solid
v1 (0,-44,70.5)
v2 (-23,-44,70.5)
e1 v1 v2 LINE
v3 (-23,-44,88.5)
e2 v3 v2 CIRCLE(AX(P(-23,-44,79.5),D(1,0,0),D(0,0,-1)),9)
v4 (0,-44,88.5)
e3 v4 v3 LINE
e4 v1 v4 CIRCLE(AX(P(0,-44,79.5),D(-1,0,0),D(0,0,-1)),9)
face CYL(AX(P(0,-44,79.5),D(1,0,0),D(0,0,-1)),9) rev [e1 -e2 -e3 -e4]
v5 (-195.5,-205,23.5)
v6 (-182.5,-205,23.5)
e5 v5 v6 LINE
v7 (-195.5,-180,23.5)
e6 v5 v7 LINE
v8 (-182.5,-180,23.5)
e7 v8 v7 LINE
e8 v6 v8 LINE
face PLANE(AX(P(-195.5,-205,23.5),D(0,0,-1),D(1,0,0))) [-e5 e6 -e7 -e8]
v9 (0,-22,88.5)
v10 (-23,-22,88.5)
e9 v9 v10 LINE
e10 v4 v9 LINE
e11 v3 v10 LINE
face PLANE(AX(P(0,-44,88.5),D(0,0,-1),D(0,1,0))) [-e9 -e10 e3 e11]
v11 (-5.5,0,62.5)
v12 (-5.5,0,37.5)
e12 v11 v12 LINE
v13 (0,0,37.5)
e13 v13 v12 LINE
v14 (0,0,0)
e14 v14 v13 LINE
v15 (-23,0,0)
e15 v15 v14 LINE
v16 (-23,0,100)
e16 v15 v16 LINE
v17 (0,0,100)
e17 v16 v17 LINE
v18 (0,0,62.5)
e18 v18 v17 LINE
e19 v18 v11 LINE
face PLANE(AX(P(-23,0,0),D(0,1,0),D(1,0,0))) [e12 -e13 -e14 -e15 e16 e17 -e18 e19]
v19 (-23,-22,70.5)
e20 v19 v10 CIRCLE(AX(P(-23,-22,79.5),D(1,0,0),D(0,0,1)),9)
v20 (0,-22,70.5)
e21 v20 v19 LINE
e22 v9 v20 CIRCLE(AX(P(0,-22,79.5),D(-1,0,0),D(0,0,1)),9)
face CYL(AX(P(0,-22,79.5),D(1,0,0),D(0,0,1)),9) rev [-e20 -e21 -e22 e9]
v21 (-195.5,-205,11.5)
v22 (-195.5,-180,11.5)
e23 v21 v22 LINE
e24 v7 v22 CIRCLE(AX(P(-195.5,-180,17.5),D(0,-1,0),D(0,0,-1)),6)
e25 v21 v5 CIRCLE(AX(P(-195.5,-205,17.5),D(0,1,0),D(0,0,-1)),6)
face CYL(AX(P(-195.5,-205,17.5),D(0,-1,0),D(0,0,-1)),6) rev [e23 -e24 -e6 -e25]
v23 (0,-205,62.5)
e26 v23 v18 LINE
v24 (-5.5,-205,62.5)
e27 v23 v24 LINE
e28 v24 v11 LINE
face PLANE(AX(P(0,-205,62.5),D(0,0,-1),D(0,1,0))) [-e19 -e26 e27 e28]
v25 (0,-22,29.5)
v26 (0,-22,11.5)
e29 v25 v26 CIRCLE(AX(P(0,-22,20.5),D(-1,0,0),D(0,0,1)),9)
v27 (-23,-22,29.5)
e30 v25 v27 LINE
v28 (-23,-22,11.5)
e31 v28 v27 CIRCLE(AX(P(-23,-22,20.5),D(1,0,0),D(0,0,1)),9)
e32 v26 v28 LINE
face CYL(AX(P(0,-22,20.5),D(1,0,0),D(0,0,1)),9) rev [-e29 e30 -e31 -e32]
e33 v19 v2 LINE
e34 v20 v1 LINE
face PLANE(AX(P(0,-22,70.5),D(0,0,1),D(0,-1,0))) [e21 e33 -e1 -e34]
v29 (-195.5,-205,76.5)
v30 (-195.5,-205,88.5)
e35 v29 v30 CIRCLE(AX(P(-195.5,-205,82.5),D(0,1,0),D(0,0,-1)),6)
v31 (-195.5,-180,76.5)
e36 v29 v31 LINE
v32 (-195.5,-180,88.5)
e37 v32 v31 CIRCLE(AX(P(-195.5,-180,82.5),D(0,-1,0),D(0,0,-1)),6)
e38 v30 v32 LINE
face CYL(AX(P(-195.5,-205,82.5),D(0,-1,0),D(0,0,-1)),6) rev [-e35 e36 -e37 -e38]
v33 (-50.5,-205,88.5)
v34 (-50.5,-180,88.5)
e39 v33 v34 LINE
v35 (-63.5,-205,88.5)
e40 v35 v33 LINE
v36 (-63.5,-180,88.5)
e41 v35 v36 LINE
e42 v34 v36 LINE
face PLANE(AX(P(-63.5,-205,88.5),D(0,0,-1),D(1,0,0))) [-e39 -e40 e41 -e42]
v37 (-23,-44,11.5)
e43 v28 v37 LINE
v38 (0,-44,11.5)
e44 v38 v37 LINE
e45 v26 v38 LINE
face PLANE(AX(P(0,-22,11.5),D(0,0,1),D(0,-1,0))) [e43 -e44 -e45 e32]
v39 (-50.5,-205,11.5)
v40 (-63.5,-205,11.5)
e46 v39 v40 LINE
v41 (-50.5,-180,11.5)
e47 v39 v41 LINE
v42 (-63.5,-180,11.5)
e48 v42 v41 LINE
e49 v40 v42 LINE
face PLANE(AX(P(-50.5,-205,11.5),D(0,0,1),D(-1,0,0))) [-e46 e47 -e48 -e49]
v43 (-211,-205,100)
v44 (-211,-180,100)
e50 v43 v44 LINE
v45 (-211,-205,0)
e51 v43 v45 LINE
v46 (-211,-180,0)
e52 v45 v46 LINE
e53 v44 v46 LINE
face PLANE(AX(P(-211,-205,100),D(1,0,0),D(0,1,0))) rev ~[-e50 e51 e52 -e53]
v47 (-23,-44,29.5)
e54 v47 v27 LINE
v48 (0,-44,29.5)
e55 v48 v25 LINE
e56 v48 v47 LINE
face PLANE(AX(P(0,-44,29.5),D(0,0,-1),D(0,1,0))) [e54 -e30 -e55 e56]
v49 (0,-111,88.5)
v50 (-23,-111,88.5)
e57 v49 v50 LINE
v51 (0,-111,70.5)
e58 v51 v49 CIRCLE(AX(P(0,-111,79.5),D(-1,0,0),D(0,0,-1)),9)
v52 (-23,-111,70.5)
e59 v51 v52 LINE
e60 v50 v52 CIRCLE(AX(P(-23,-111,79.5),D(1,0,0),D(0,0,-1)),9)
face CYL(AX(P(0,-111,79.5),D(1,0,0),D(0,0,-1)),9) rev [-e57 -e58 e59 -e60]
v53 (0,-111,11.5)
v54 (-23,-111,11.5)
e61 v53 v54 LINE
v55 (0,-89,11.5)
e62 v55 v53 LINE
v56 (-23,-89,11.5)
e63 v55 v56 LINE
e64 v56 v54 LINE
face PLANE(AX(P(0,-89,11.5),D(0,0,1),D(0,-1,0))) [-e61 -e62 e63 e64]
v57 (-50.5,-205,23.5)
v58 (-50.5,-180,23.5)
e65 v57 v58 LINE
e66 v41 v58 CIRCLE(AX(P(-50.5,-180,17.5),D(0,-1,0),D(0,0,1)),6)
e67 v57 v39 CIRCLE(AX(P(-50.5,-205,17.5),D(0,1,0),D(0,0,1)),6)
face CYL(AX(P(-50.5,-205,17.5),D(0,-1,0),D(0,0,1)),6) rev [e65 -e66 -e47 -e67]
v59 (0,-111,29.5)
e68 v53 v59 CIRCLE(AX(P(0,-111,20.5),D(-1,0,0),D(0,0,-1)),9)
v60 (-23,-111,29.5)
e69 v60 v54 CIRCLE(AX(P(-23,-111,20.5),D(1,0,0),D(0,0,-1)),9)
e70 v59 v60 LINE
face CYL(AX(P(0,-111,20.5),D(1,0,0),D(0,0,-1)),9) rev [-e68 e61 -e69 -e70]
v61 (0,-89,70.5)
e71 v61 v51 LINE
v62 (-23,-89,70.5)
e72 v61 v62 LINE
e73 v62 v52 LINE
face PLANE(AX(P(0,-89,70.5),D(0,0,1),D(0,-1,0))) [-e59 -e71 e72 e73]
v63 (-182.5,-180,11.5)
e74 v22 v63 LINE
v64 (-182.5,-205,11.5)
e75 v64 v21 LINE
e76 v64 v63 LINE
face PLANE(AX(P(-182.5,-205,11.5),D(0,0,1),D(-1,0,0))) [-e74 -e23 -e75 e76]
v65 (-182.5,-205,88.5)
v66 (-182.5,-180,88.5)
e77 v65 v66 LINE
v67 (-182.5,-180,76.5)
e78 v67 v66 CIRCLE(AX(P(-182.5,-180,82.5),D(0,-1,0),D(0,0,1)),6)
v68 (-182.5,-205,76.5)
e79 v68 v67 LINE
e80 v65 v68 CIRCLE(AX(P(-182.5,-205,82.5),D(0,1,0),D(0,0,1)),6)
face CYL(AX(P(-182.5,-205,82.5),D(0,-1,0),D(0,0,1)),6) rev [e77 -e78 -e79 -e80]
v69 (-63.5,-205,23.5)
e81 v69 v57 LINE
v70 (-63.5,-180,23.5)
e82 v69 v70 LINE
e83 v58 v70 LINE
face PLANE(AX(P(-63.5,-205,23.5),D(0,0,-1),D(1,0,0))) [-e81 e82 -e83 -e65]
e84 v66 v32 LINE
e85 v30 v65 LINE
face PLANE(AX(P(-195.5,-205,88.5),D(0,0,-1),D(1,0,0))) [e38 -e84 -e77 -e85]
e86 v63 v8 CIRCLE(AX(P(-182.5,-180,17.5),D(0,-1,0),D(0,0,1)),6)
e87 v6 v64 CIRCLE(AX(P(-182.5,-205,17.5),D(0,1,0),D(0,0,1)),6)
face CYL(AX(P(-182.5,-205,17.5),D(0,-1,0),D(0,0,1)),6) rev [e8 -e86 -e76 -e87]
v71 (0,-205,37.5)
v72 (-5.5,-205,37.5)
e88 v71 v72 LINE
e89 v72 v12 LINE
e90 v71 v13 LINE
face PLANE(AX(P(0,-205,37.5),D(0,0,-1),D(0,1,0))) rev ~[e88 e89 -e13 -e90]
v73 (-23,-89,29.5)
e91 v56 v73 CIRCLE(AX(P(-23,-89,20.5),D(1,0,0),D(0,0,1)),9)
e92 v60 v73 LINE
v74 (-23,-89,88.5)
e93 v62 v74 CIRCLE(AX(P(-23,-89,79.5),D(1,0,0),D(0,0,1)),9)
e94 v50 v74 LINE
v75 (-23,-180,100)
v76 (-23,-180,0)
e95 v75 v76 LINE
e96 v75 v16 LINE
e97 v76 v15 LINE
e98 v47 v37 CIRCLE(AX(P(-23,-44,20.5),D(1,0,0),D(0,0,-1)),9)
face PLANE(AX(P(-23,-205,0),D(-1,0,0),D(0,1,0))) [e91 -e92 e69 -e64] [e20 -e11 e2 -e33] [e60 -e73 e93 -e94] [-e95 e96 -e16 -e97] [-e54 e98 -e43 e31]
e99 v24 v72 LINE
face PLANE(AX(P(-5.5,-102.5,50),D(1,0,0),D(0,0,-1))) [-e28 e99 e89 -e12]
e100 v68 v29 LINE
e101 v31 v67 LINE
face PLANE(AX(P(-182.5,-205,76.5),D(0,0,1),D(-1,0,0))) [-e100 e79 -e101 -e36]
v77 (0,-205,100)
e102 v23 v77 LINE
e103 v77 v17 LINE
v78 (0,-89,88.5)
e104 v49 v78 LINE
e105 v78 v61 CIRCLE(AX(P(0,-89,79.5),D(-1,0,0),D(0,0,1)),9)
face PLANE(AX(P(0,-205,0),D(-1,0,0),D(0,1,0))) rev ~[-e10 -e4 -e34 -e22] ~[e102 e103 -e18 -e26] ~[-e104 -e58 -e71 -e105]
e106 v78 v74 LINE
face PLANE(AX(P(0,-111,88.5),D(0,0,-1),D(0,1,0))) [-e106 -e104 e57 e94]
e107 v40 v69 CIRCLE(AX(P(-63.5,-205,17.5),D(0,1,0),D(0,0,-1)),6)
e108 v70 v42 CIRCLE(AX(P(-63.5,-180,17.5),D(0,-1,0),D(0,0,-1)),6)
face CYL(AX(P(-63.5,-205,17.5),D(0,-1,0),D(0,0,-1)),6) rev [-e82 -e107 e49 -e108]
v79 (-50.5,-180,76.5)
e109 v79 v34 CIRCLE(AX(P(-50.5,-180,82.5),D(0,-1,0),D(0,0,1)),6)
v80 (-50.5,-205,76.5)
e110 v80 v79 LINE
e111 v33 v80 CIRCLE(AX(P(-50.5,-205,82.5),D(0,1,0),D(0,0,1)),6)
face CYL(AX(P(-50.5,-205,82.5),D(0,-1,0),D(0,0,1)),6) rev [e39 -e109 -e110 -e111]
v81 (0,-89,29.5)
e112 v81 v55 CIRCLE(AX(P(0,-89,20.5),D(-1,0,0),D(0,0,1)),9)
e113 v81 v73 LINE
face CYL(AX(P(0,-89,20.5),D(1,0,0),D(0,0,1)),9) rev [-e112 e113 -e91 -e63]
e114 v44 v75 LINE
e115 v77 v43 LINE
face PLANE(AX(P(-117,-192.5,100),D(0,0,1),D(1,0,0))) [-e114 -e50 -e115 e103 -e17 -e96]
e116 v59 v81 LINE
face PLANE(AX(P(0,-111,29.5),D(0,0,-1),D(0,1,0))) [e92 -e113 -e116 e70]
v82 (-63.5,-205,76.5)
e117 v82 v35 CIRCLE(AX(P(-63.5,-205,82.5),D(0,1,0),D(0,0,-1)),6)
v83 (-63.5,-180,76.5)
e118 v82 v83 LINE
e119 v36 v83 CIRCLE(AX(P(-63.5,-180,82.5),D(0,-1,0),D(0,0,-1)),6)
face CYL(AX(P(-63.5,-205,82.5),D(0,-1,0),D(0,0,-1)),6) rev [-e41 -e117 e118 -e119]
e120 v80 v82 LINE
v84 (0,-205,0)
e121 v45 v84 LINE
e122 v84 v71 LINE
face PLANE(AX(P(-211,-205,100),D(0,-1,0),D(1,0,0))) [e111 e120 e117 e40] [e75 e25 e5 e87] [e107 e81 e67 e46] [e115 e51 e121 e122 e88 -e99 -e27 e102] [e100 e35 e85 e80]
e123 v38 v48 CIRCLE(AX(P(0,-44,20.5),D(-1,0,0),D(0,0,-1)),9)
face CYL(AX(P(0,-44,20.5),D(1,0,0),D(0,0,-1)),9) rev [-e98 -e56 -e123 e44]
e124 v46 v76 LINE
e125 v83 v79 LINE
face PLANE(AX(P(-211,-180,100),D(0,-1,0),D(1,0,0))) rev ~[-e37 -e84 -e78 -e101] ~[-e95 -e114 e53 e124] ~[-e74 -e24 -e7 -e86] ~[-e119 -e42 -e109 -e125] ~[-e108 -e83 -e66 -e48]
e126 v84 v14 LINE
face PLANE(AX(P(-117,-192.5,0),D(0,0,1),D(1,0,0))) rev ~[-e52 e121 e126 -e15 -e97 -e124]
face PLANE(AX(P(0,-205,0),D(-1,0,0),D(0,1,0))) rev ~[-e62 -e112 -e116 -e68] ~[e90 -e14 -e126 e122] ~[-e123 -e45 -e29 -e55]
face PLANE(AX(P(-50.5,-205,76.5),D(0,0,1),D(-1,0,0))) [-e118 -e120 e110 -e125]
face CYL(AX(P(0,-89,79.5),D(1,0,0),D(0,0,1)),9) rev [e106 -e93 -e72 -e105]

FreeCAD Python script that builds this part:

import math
import FreeCAD as App
import Part
import Sketcher
from FreeCAD import Vector
Q = App.Units.Quantity

doc = App.newDocument("Part")
body = doc.addObject("PartDesign::Body", "Body")

# Sketch on XY plane
sketch1 = body.newObject("Sketcher::SketchObject", "Sketch")
sketch1.AttachmentSupport = (doc.getObject("XY_Plane"), [""])
sketch1.MapMode = "FlatFace"
sketch1.addGeometry([
    Part.LineSegment(Vector(-23, 0, 0), Vector(-23, -205, 0)),
    Part.LineSegment(Vector(-23, -205, 0), Vector(0, -205, 0)),
    Part.LineSegment(Vector(0, -205, 0), Vector(0, 0, 0)),
    Part.LineSegment(Vector(0, 0, 0), Vector(-23, 0, 0)),
], False)
sketch1.addConstraint([
    Sketcher.Constraint("Coincident", 0, 2, 1, 1),
    Sketcher.Constraint("Coincident", 1, 2, 2, 1),
    Sketcher.Constraint("Coincident", 2, 2, 3, 1),
    Sketcher.Constraint("Coincident", 3, 2, 0, 1),
    Sketcher.Constraint("Vertical", 0),
    Sketcher.Constraint("Horizontal", 1),
    Sketcher.Constraint("Vertical", 2),
    Sketcher.Constraint("Horizontal", 3),
    Sketcher.Constraint("Coincident", 2, 2, -1, 1),
    Sketcher.Constraint("DistanceX", 1, 1, 1, 2, Q("23 mm")),
    Sketcher.Constraint("DistanceY", 0, 2, 0, 1, Q("205 mm")),
])
pad1 = body.newObject("PartDesign::Pad", "Pad")
pad1.Profile = sketch1
pad1.Length = 100

# Sketch on XY plane
sketch2 = body.newObject("Sketcher::SketchObject", "Sketch001")
sketch2.AttachmentSupport = (doc.getObject("XY_Plane"), [""])
sketch2.MapMode = "FlatFace"
sketch2.AttachmentOffset = App.Placement(Vector(0, 0, 100), App.Rotation())
sketch2.addGeometry([
    Part.LineSegment(Vector(-211, -180, 0), Vector(-211, -205, 0)),
    Part.LineSegment(Vector(-211, -205, 0), Vector(-23, -205, 0)),
    Part.LineSegment(Vector(-23, -205, 0), Vector(-23, -180, 0)),
    Part.LineSegment(Vector(-23, -180, 0), Vector(-211, -180, 0)),
], False)
sketch2.addConstraint([
    Sketcher.Constraint("Coincident", 0, 2, 1, 1),
    Sketcher.Constraint("Coincident", 1, 2, 2, 1),
    Sketcher.Constraint("Coincident", 2, 2, 3, 1),
    Sketcher.Constraint("Coincident", 3, 2, 0, 1),
    Sketcher.Constraint("Vertical", 0),
    Sketcher.Constraint("Horizontal", 1),
    Sketcher.Constraint("Vertical", 2),
    Sketcher.Constraint("Horizontal", 3),
    Sketcher.Constraint("DistanceX", 1, 1, 1, 2, Q("188 mm")),
    Sketcher.Constraint("DistanceY", 0, 2, 0, 1, Q("25 mm")),
    Sketcher.Constraint("DistanceX", 0, 2, -1, 1, Q("211 mm")),
    Sketcher.Constraint("DistanceY", 0, 2, -1, 1, Q("205 mm")),
])
pad2 = body.newObject("PartDesign::Pad", "Pad001")
pad2.Profile = sketch2
pad2.Length = 100
pad2.Reversed = True

# Sketch on YZ plane
sketch3 = body.newObject("Sketcher::SketchObject", "Sketch002")
sketch3.AttachmentSupport = (doc.getObject("YZ_Plane"), [""])
sketch3.MapMode = "FlatFace"
sketch3.addGeometry([
    Part.LineSegment(Vector(-44, 70, 0), Vector(-22, 70, 0)),
    Part.ArcOfCircle(Part.Circle(Vector(-22, 80, 0), Vector(0, 0, 1), 9), math.radians(-90), math.radians(90)),
    Part.LineSegment(Vector(-22, 88, 0), Vector(-44, 88, 0)),
    Part.ArcOfCircle(Part.Circle(Vector(-44, 80, 0), Vector(0, 0, 1), 9), math.radians(90), math.radians(270)),
], False)
sketch3.addConstraint([
    Sketcher.Constraint("Tangent", 0, 2, 1, 1),
    Sketcher.Constraint("Tangent", 1, 2, 2, 1),
    Sketcher.Constraint("Tangent", 2, 2, 3, 1),
    Sketcher.Constraint("Tangent", 3, 2, 0, 1),
    Sketcher.Constraint("Horizontal", 0),
    Sketcher.Constraint("Horizontal", 2),
    Sketcher.Constraint("Radius", 1, Q("9 mm")),
    Sketcher.Constraint("DistanceX", 0, 1, 0, 2, Q("22 mm")),
    Sketcher.Constraint("DistanceX", 1, 3, -1, 1, Q("22 mm")),
    Sketcher.Constraint("DistanceY", -1, 1, 1, 3, Q("79.5 mm")),
])
pocket1 = body.newObject("PartDesign::Pocket", "Pocket")
pocket1.Profile = sketch3
pocket1.Type = "UpToFirst"

# Sketch on YZ plane
sketch4 = body.newObject("Sketcher::SketchObject", "Sketch003")
sketch4.AttachmentSupport = (doc.getObject("YZ_Plane"), [""])
sketch4.MapMode = "FlatFace"
sketch4.addGeometry([
    Part.LineSegment(Vector(-44, 12, 0), Vector(-22, 12, 0)),
    Part.ArcOfCircle(Part.Circle(Vector(-22, 20, 0), Vector(0, 0, 1), 9), math.radians(-90), math.radians(90)),
    Part.LineSegment(Vector(-22, 30, 0), Vector(-44, 30, 0)),
    Part.ArcOfCircle(Part.Circle(Vector(-44, 20, 0), Vector(0, 0, 1), 9), math.radians(90), math.radians(270)),
], False)
sketch4.addConstraint([
    Sketcher.Constraint("Tangent", 0, 2, 1, 1),
    Sketcher.Constraint("Tangent", 1, 2, 2, 1),
    Sketcher.Constraint("Tangent", 2, 2, 3, 1),
    Sketcher.Constraint("Tangent", 3, 2, 0, 1),
    Sketcher.Constraint("Horizontal", 0),
    Sketcher.Constraint("Horizontal", 2),
    Sketcher.Constraint("Radius", 1, Q("9 mm")),
    Sketcher.Constraint("DistanceX", 0, 1, 0, 2, Q("22 mm")),
    Sketcher.Constraint("DistanceX", 1, 3, -1, 1, Q("22 mm")),
    Sketcher.Constraint("DistanceY", -1, 1, 1, 3, Q("20.5 mm")),
])
pocket2 = body.newObject("PartDesign::Pocket", "Pocket001")
pocket2.Profile = sketch4
pocket2.Type = "UpToFirst"

# Sketch on YZ plane
sketch5 = body.newObject("Sketcher::SketchObject", "Sketch004")
sketch5.AttachmentSupport = (doc.getObject("YZ_Plane"), [""])
sketch5.MapMode = "FlatFace"
sketch5.addGeometry([
    Part.LineSegment(Vector(-111, 70, 0), Vector(-89, 70, 0)),
    Part.ArcOfCircle(Part.Circle(Vector(-89, 80, 0), Vector(0, 0, 1), 9), math.radians(-90), math.radians(90)),
    Part.LineSegment(Vector(-89, 88, 0), Vector(-111, 88, 0)),
    Part.ArcOfCircle(Part.Circle(Vector(-111, 80, 0), Vector(0, 0, 1), 9), math.radians(90), math.radians(270)),
], False)
sketch5.addConstraint([
    Sketcher.Constraint("Tangent", 0, 2, 1, 1),
    Sketcher.Constraint("Tangent", 1, 2, 2, 1),
    Sketcher.Constraint("Tangent", 2, 2, 3, 1),
    Sketcher.Constraint("Tangent", 3, 2, 0, 1),
    Sketcher.Constraint("Horizontal", 0),
    Sketcher.Constraint("Horizontal", 2),
    Sketcher.Constraint("Radius", 1, Q("9 mm")),
    Sketcher.Constraint("DistanceX", 0, 1, 0, 2, Q("22 mm")),
    Sketcher.Constraint("DistanceX", 1, 3, -1, 1, Q("89 mm")),
    Sketcher.Constraint("DistanceY", -1, 1, 1, 3, Q("79.5 mm")),
])
pocket3 = body.newObject("PartDesign::Pocket", "Pocket002")
pocket3.Profile = sketch5
pocket3.Type = "UpToFirst"

# Sketch on YZ plane
sketch6 = body.newObject("Sketcher::SketchObject", "Sketch005")
sketch6.AttachmentSupport = (doc.getObject("YZ_Plane"), [""])
sketch6.MapMode = "FlatFace"
sketch6.addGeometry([
    Part.LineSegment(Vector(-111, 12, 0), Vector(-89, 12, 0)),
    Part.ArcOfCircle(Part.Circle(Vector(-89, 20, 0), Vector(0, 0, 1), 9), math.radians(-90), math.radians(90)),
    Part.LineSegment(Vector(-89, 30, 0), Vector(-111, 30, 0)),
    Part.ArcOfCircle(Part.Circle(Vector(-111, 20, 0), Vector(0, 0, 1), 9), math.radians(90), math.radians(270)),
], False)
sketch6.addConstraint([
    Sketcher.Constraint("Tangent", 0, 2, 1, 1),
    Sketcher.Constraint("Tangent", 1, 2, 2, 1),
    Sketcher.Constraint("Tangent", 2, 2, 3, 1),
    Sketcher.Constraint("Tangent", 3, 2, 0, 1),
    Sketcher.Constraint("Horizontal", 0),
    Sketcher.Constraint("Horizontal", 2),
    Sketcher.Constraint("Radius", 1, Q("9 mm")),
    Sketcher.Constraint("DistanceX", 0, 1, 0, 2, Q("22 mm")),
    Sketcher.Constraint("DistanceX", 1, 3, -1, 1, Q("89 mm")),
    Sketcher.Constraint("DistanceY", -1, 1, 1, 3, Q("20.5 mm")),
])
pocket4 = body.newObject("PartDesign::Pocket", "Pocket003")
pocket4.Profile = sketch6
pocket4.Type = "UpToFirst"

# Sketch on XZ plane
sketch7 = body.newObject("Sketcher::SketchObject", "Sketch006")
sketch7.AttachmentSupport = (doc.getObject("XZ_Plane"), [""])
sketch7.MapMode = "FlatFace"
sketch7.AttachmentOffset = App.Placement(Vector(0, 0, 205), App.Rotation())
sketch7.addGeometry([
    Part.LineSegment(Vector(-182, 88, 0), Vector(-196, 88, 0)),
    Part.ArcOfCircle(Part.Circle(Vector(-196, 82, 0), Vector(0, 0, 1), 6), math.radians(90), math.radians(270)),
    Part.LineSegment(Vector(-196, 76, 0), Vector(-182, 76, 0)),
    Part.ArcOfCircle(Part.Circle(Vector(-182, 82, 0), Vector(0, 0, 1), 6), math.radians(-90), math.radians(90)),
], False)
sketch7.addConstraint([
    Sketcher.Constraint("Tangent", 0, 2, 1, 1),
    Sketcher.Constraint("Tangent", 1, 2, 2, 1),
    Sketcher.Constraint("Tangent", 2, 2, 3, 1),
    Sketcher.Constraint("Tangent", 3, 2, 0, 1),
    Sketcher.Constraint("Horizontal", 0),
    Sketcher.Constraint("Horizontal", 2),
    Sketcher.Constraint("Radius", 1, Q("6 mm")),
    Sketcher.Constraint("DistanceX", 0, 2, 0, 1, Q("13 mm")),
    Sketcher.Constraint("DistanceX", 1, 3, -1, 1, Q("195.5 mm")),
    Sketcher.Constraint("DistanceY", -1, 1, 1, 3, Q("82.5 mm")),
])
pocket5 = body.newObject("PartDesign::Pocket", "Pocket004")
pocket5.Profile = sketch7
pocket5.Type = "UpToFirst"

# Sketch on XZ plane
sketch8 = body.newObject("Sketcher::SketchObject", "Sketch007")
sketch8.AttachmentSupport = (doc.getObject("XZ_Plane"), [""])
sketch8.MapMode = "FlatFace"
sketch8.AttachmentOffset = App.Placement(Vector(0, 0, 205), App.Rotation())
sketch8.addGeometry([
    Part.LineSegment(Vector(-50, 88, 0), Vector(-64, 88, 0)),
    Part.ArcOfCircle(Part.Circle(Vector(-64, 82, 0), Vector(0, 0, 1), 6), math.radians(90), math.radians(270)),
    Part.LineSegment(Vector(-64, 76, 0), Vector(-50, 76, 0)),
    Part.ArcOfCircle(Part.Circle(Vector(-50, 82, 0), Vector(0, 0, 1), 6), math.radians(-90), math.radians(90)),
], False)
sketch8.addConstraint([
    Sketcher.Constraint("Tangent", 0, 2, 1, 1),
    Sketcher.Constraint("Tangent", 1, 2, 2, 1),
    Sketcher.Constraint("Tangent", 2, 2, 3, 1),
    Sketcher.Constraint("Tangent", 3, 2, 0, 1),
    Sketcher.Constraint("Horizontal", 0),
    Sketcher.Constraint("Horizontal", 2),
    Sketcher.Constraint("Radius", 1, Q("6 mm")),
    Sketcher.Constraint("DistanceX", 0, 2, 0, 1, Q("13 mm")),
    Sketcher.Constraint("DistanceX", 1, 3, -1, 1, Q("63.5 mm")),
    Sketcher.Constraint("DistanceY", -1, 1, 1, 3, Q("82.5 mm")),
])
pocket6 = body.newObject("PartDesign::Pocket", "Pocket005")
pocket6.Profile = sketch8
pocket6.Type = "UpToFirst"

# Sketch on XZ plane
sketch9 = body.newObject("Sketcher::SketchObject", "Sketch008")
sketch9.AttachmentSupport = (doc.getObject("XZ_Plane"), [""])
sketch9.MapMode = "FlatFace"
sketch9.AttachmentOffset = App.Placement(Vector(0, 0, 205), App.Rotation())
sketch9.addGeometry([
    Part.LineSegment(Vector(-182, 24, 0), Vector(-196, 24, 0)),
    Part.ArcOfCircle(Part.Circle(Vector(-196, 18, 0), Vector(0, 0, 1), 6), math.radians(90), math.radians(270)),
    Part.LineSegment(Vector(-196, 12, 0), Vector(-182, 12, 0)),
    Part.ArcOfCircle(Part.Circle(Vector(-182, 18, 0), Vector(0, 0, 1), 6), math.radians(-90), math.radians(90)),
], False)
sketch9.addConstraint([
    Sketcher.Constraint("Tangent", 0, 2, 1, 1),
    Sketcher.Constraint("Tangent", 1, 2, 2, 1),
    Sketcher.Constraint("Tangent", 2, 2, 3, 1),
    Sketcher.Constraint("Tangent", 3, 2, 0, 1),
    Sketcher.Constraint("Horizontal", 0),
    Sketcher.Constraint("Horizontal", 2),
    Sketcher.Constraint("Radius", 1, Q("6 mm")),
    Sketcher.Constraint("DistanceX", 0, 2, 0, 1, Q("13 mm")),
    Sketcher.Constraint("DistanceX", 1, 3, -1, 1, Q("195.5 mm")),
    Sketcher.Constraint("DistanceY", -1, 1, 1, 3, Q("17.5 mm")),
])
pocket7 = body.newObject("PartDesign::Pocket", "Pocket006")
pocket7.Profile = sketch9
pocket7.Type = "UpToFirst"

# Sketch on XZ plane
sketch10 = body.newObject("Sketcher::SketchObject", "Sketch009")
sketch10.AttachmentSupport = (doc.getObject("XZ_Plane"), [""])
sketch10.MapMode = "FlatFace"
sketch10.AttachmentOffset = App.Placement(Vector(0, 0, 205), App.Rotation())
sketch10.addGeometry([
    Part.LineSegment(Vector(-50, 24, 0), Vector(-64, 24, 0)),
    Part.ArcOfCircle(Part.Circle(Vector(-64, 18, 0), Vector(0, 0, 1), 6), math.radians(90), math.radians(270)),
    Part.LineSegment(Vector(-64, 12, 0), Vector(-50, 12, 0)),
    Part.ArcOfCircle(Part.Circle(Vector(-50, 18, 0), Vector(0, 0, 1), 6), math.radians(-90), math.radians(90)),
], False)
sketch10.addConstraint([
    Sketcher.Constraint("Tangent", 0, 2, 1, 1),
    Sketcher.Constraint("Tangent", 1, 2, 2, 1),
    Sketcher.Constraint("Tangent", 2, 2, 3, 1),
    Sketcher.Constraint("Tangent", 3, 2, 0, 1),
    Sketcher.Constraint("Horizontal", 0),
    Sketcher.Constraint("Horizontal", 2),
    Sketcher.Constraint("Radius", 1, Q("6 mm")),
    Sketcher.Constraint("DistanceX", 0, 2, 0, 1, Q("13 mm")),
    Sketcher.Constraint("DistanceX", 1, 3, -1, 1, Q("63.5 mm")),
    Sketcher.Constraint("DistanceY", -1, 1, 1, 3, Q("17.5 mm")),
])
pocket8 = body.newObject("PartDesign::Pocket", "Pocket007")
pocket8.Profile = sketch10
pocket8.Type = "UpToFirst"

# Sketch on YZ plane
sketch11 = body.newObject("Sketcher::SketchObject", "Sketch010")
sketch11.AttachmentSupport = (doc.getObject("YZ_Plane"), [""])
sketch11.MapMode = "FlatFace"
sketch11.addGeometry([
    Part.LineSegment(Vector(0, 62, 0), Vector(-205, 62, 0)),
    Part.LineSegment(Vector(-205, 62, 0), Vector(-205, 38, 0)),
    Part.LineSegment(Vector(-205, 38, 0), Vector(0, 38, 0)),
    Part.LineSegment(Vector(0, 38, 0), Vector(0, 62, 0)),
], False)
sketch11.addConstraint([
    Sketcher.Constraint("Coincident", 0, 2, 1, 1),
    Sketcher.Constraint("Coincident", 1, 2, 2, 1),
    Sketcher.Constraint("Coincident", 2, 2, 3, 1),
    Sketcher.Constraint("Coincident", 3, 2, 0, 1),
    Sketcher.Constraint("Horizontal", 0),
    Sketcher.Constraint("Vertical", 1),
    Sketcher.Constraint("Horizontal", 2),
    Sketcher.Constraint("Vertical", 3),
    Sketcher.Constraint("PointOnObject", 2, 2, -2),
    Sketcher.Constraint("DistanceX", 0, 2, 0, 1, Q("205 mm")),
    Sketcher.Constraint("DistanceY", 1, 2, 1, 1, Q("25 mm")),
    Sketcher.Constraint("DistanceY", -1, 1, 0, 2, Q("62.5 mm")),
])
pocket9 = body.newObject("PartDesign::Pocket", "Pocket008")
pocket9.Profile = sketch11
pocket9.Length = 5.5

doc.recompute()
